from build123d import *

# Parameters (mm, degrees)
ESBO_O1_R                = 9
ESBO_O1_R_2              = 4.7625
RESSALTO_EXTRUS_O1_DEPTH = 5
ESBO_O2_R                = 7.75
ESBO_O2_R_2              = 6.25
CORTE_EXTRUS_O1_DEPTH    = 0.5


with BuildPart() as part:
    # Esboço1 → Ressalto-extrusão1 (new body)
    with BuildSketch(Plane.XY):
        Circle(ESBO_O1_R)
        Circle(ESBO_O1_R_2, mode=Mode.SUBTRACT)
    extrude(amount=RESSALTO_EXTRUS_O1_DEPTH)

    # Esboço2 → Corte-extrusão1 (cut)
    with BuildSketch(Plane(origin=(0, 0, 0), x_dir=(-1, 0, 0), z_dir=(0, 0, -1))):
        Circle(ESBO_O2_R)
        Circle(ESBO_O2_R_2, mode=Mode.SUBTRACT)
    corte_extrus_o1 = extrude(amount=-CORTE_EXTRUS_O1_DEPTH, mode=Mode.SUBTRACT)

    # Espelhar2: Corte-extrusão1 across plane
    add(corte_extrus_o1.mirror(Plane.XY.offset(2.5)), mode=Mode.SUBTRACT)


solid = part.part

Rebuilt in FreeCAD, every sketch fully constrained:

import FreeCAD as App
import Part
import Sketcher

V = App.Vector
Q = App.Units.Quantity

doc = App.newDocument("Part")
params = doc.addObject("Spreadsheet::Sheet", "Params")
for row, (alias, value) in enumerate([
    ("sketch1_diameter", "18 mm"),
    ("pad1_length", "5 mm"),
    ("sketch2_diameter", "15.5 mm"),
    ("sketch2_diameter2", "12.5 mm"),
    ("pocket1_length", "0.5 mm"),
], start=1):
    params.set(f"A{row}", alias)
    params.set(f"B{row}", "=" + value)
    params.setAlias(f"B{row}", alias)

body = doc.addObject("PartDesign::Body", "Body")

# Sketch on XY plane
sketch1 = body.newObject("Sketcher::SketchObject", "Sketch")
sketch1.AttachmentSupport = (doc.getObject("XY_Plane"), [""])
sketch1.MapMode = "FlatFace"
sketch1.addGeometry(Part.Circle(V(0, 0, 0), V(0, 0, 1), 9), False)
sketch1.addGeometry(Part.Circle(V(0, 0, 0), V(0, 0, 1), 4.8), False)
sketch1.addConstraint(Sketcher.Constraint("Coincident", 0, 3, -1, 1))
sketch1.addConstraint(Sketcher.Constraint("Coincident", 1, 3, -1, 1))
sketch1.addConstraint(Sketcher.Constraint("Diameter", 0, Q("18 mm")))
sketch1.addConstraint(Sketcher.Constraint("Diameter", 1, Q("9.525 mm")))
sketch1.setExpression("Constraints[2]", "Params.sketch1_diameter")
pad1 = body.newObject("PartDesign::Pad", "Pad")
pad1.Profile = sketch1
pad1.setExpression("Length", "Params.pad1_length")

# Sketch on XY plane
sketch2 = body.newObject("Sketcher::SketchObject", "Sketch001")
sketch2.AttachmentSupport = (doc.getObject("XY_Plane"), [""])
sketch2.MapMode = "FlatFace"
sketch2.addGeometry(Part.Circle(V(0, 0, 0), V(0, 0, 1), 8), False)
sketch2.addGeometry(Part.Circle(V(0, 0, 0), V(0, 0, 1), 6), False)
sketch2.addConstraint(Sketcher.Constraint("Coincident", 0, 3, -1, 1))
sketch2.addConstraint(Sketcher.Constraint("Coincident", 1, 3, -1, 1))
sketch2.addConstraint(Sketcher.Constraint("Diameter", 0, Q("15.5 mm")))
sketch2.addConstraint(Sketcher.Constraint("Diameter", 1, Q("12.5 mm")))
sketch2.setExpression("Constraints[2]", "Params.sketch2_diameter")
sketch2.setExpression("Constraints[3]", "Params.sketch2_diameter2")
pocket1 = body.newObject("PartDesign::Pocket", "Pocket")
pocket1.Profile = sketch2
pocket1.setExpression("Length", "Params.pocket1_length")
pocket1.Reversed = True
doc.recompute()

datumplane = body.newObject("PartDesign::Plane", "DatumPlane")
datumplane.AttachmentSupport = (doc.getObject("XY_Plane"), [""])
datumplane.MapMode = "FlatFace"
datumplane.AttachmentOffset = App.Placement(V(0, 0, 2.5), App.Rotation())
mirrored = body.newObject("PartDesign::Mirrored", "Mirrored")
mirrored.Originals = [pocket1]
mirrored.MirrorPlane = (datumplane, [""])
body.Tip = mirrored

doc.recompute()
